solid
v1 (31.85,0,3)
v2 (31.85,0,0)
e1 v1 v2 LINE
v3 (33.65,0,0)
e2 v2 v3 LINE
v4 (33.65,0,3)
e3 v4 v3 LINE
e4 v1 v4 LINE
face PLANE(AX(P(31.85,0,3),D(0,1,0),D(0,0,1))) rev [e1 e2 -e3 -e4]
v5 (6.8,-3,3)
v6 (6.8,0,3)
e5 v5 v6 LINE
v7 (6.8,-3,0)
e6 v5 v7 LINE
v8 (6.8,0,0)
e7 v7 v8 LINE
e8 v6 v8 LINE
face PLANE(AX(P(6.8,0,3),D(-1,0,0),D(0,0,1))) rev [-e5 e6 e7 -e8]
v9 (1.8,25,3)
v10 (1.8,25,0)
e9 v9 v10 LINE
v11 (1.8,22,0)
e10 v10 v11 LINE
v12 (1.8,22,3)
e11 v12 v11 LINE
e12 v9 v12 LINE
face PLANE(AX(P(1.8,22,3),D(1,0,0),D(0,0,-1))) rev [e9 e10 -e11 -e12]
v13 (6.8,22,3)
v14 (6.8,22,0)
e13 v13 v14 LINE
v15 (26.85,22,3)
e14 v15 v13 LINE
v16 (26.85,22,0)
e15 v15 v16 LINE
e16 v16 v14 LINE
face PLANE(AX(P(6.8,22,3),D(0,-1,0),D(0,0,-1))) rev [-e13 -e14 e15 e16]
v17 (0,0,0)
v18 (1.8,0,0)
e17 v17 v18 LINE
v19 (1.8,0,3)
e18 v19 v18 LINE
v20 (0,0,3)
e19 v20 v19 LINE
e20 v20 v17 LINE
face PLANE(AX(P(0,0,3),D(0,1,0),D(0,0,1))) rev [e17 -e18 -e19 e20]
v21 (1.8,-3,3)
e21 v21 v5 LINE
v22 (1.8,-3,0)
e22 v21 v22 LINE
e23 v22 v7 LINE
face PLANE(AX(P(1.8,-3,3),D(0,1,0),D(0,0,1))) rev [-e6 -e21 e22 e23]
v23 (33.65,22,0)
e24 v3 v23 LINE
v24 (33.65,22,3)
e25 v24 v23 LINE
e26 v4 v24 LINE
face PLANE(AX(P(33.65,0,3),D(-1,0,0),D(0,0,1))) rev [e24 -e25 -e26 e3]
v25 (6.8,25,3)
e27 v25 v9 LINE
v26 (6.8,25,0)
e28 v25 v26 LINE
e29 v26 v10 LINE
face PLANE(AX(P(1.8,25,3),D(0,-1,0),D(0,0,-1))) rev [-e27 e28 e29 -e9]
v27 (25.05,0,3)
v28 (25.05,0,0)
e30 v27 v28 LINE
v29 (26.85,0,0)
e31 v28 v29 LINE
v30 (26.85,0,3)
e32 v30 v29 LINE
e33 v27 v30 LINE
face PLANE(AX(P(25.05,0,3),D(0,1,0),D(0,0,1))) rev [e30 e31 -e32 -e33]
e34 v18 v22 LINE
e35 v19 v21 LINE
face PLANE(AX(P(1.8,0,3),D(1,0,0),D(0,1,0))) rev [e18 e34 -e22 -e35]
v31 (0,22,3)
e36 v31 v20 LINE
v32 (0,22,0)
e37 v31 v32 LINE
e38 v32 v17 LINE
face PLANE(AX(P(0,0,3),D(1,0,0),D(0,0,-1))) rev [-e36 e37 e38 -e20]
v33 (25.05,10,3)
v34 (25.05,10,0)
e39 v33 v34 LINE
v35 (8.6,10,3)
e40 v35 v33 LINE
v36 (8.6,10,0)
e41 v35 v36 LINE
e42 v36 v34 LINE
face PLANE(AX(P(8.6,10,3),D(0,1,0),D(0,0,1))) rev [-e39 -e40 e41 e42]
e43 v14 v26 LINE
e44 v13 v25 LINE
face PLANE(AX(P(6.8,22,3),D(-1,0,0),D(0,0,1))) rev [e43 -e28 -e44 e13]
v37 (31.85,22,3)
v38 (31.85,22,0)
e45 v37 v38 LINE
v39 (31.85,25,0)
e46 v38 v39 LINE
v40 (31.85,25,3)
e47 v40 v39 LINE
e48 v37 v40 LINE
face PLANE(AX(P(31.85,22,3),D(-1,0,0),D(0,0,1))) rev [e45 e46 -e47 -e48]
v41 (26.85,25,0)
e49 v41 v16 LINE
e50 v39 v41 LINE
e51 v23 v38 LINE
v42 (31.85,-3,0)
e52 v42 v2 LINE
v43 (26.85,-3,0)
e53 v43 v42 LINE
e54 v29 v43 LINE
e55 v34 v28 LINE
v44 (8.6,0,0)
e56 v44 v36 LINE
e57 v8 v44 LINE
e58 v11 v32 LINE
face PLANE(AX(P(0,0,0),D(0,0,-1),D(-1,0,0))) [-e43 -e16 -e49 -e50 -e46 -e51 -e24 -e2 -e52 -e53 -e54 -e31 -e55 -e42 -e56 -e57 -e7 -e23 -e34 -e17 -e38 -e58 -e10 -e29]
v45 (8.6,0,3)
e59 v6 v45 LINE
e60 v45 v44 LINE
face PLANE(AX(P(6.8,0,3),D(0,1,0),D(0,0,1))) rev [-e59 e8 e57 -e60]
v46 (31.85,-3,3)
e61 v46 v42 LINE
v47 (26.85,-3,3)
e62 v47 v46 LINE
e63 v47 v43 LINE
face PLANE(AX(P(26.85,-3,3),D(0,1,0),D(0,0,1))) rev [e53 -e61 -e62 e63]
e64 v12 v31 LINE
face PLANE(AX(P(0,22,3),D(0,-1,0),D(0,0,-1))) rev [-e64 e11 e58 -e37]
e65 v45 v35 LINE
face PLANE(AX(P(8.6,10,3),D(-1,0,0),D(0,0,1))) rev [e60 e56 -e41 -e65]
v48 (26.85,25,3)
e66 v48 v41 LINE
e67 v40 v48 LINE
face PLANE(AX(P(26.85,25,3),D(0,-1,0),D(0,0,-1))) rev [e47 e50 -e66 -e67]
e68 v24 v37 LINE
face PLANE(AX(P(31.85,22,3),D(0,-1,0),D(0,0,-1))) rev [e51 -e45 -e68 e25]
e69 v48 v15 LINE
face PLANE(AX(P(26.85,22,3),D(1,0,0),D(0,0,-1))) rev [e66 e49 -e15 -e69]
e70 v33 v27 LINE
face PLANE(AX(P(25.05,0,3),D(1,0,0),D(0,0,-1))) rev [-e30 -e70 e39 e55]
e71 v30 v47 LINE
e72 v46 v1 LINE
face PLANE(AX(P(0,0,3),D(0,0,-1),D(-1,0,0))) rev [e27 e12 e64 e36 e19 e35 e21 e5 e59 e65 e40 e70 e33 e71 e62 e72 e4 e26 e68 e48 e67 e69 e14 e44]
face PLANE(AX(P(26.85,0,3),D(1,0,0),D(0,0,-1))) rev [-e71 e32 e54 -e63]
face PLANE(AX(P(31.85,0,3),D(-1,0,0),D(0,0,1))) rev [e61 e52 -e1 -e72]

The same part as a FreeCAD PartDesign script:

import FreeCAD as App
import Part
import Sketcher

doc = App.newDocument("Part")
body = doc.addObject("PartDesign::Body", "Body")

sketch1 = doc.addObject("Sketcher::SketchObject", "Sketch")
body.addObject(sketch1)
sketch1.AttachmentSupport = (doc.XY_Plane, [""])
sketch1.MapMode = "FlatFace"
sketch1.addGeometry(Part.LineSegment(App.Vector(25.1, 0, 0), App.Vector(26.9, 0, 0)), False)
sketch1.addGeometry(Part.LineSegment(App.Vector(26.9, 0, 0), App.Vector(26.9, -3, 0)), False)
sketch1.addGeometry(Part.LineSegment(App.Vector(26.9, -3, 0), App.Vector(31.9, -3, 0)), False)
sketch1.addGeometry(Part.LineSegment(App.Vector(31.9, -3, 0), App.Vector(31.9, 0, 0)), False)
sketch1.addGeometry(Part.LineSegment(App.Vector(31.9, 0, 0), App.Vector(33.6, 0, 0)), False)
sketch1.addGeometry(Part.LineSegment(App.Vector(33.6, 0, 0), App.Vector(33.6, 22, 0)), False)
sketch1.addGeometry(Part.LineSegment(App.Vector(33.6, 22, 0), App.Vector(31.9, 22, 0)), False)
sketch1.addGeometry(Part.LineSegment(App.Vector(31.9, 22, 0), App.Vector(31.9, 25, 0)), False)
sketch1.addGeometry(Part.LineSegment(App.Vector(31.9, 25, 0), App.Vector(26.9, 25, 0)), False)
sketch1.addGeometry(Part.LineSegment(App.Vector(26.9, 25, 0), App.Vector(26.9, 22, 0)), False)
sketch1.addGeometry(Part.LineSegment(App.Vector(26.9, 22, 0), App.Vector(6.8, 22, 0)), False)
sketch1.addGeometry(Part.LineSegment(App.Vector(6.8, 22, 0), App.Vector(6.8, 25, 0)), False)
sketch1.addGeometry(Part.LineSegment(App.Vector(6.8, 25, 0), App.Vector(1.8, 25, 0)), False)
sketch1.addGeometry(Part.LineSegment(App.Vector(1.8, 25, 0), App.Vector(1.8, 22, 0)), False)
sketch1.addGeometry(Part.LineSegment(App.Vector(1.8, 22, 0), App.Vector(0, 22, 0)), False)
sketch1.addGeometry(Part.LineSegment(App.Vector(0, 22, 0), App.Vector(0, 0, 0)), False)
sketch1.addGeometry(Part.LineSegment(App.Vector(0, 0, 0), App.Vector(1.8, 0, 0)), False)
sketch1.addGeometry(Part.LineSegment(App.Vector(1.8, 0, 0), App.Vector(1.8, -3, 0)), False)
sketch1.addGeometry(Part.LineSegment(App.Vector(1.8, -3, 0), App.Vector(6.8, -3, 0)), False)
sketch1.addGeometry(Part.LineSegment(App.Vector(6.8, -3, 0), App.Vector(6.8, 0, 0)), False)
sketch1.addGeometry(Part.LineSegment(App.Vector(6.8, 0, 0), App.Vector(8.6, 0, 0)), False)
sketch1.addGeometry(Part.LineSegment(App.Vector(8.6, 0, 0), App.Vector(8.6, 10, 0)), False)
sketch1.addGeometry(Part.LineSegment(App.Vector(8.6, 10, 0), App.Vector(25.1, 10, 0)), False)
sketch1.addGeometry(Part.LineSegment(App.Vector(25.1, 10, 0), App.Vector(25.1, 0, 0)), False)
sketch1.addConstraint(Sketcher.Constraint("Coincident", 0, 2, 1, 1))
sketch1.addConstraint(Sketcher.Constraint("Coincident", 1, 2, 2, 1))
sketch1.addConstraint(Sketcher.Constraint("Coincident", 2, 2, 3, 1))
sketch1.addConstraint(Sketcher.Constraint("Coincident", 3, 2, 4, 1))
sketch1.addConstraint(Sketcher.Constraint("Coincident", 4, 2, 5, 1))
sketch1.addConstraint(Sketcher.Constraint("Coincident", 5, 2, 6, 1))
sketch1.addConstraint(Sketcher.Constraint("Coincident", 6, 2, 7, 1))
sketch1.addConstraint(Sketcher.Constraint("Coincident", 7, 2, 8, 1))
sketch1.addConstraint(Sketcher.Constraint("Coincident", 8, 2, 9, 1))
sketch1.addConstraint(Sketcher.Constraint("Coincident", 9, 2, 10, 1))
sketch1.addConstraint(Sketcher.Constraint("Coincident", 10, 2, 11, 1))
sketch1.addConstraint(Sketcher.Constraint("Coincident", 11, 2, 12, 1))
sketch1.addConstraint(Sketcher.Constraint("Coincident", 12, 2, 13, 1))
sketch1.addConstraint(Sketcher.Constraint("Coincident", 13, 2, 14, 1))
sketch1.addConstraint(Sketcher.Constraint("Coincident", 14, 2, 15, 1))
sketch1.addConstraint(Sketcher.Constraint("Coincident", 15, 2, 16, 1))
sketch1.addConstraint(Sketcher.Constraint("Coincident", 16, 2, 17, 1))
sketch1.addConstraint(Sketcher.Constraint("Coincident", 17, 2, 18, 1))
sketch1.addConstraint(Sketcher.Constraint("Coincident", 18, 2, 19, 1))
sketch1.addConstraint(Sketcher.Constraint("Coincident", 19, 2, 20, 1))
sketch1.addConstraint(Sketcher.Constraint("Coincident", 20, 2, 21, 1))
sketch1.addConstraint(Sketcher.Constraint("Coincident", 21, 2, 22, 1))
sketch1.addConstraint(Sketcher.Constraint("Coincident", 22, 2, 23, 1))
sketch1.addConstraint(Sketcher.Constraint("Coincident", 23, 2, 0, 1))
sketch1.addConstraint(Sketcher.Constraint("Horizontal", 0))
sketch1.addConstraint(Sketcher.Constraint("Vertical", 1))
sketch1.addConstraint(Sketcher.Constraint("Horizontal", 2))
sketch1.addConstraint(Sketcher.Constraint("Vertical", 3))
sketch1.addConstraint(Sketcher.Constraint("Horizontal", 4))
sketch1.addConstraint(Sketcher.Constraint("Vertical", 5))
sketch1.addConstraint(Sketcher.Constraint("Horizontal", 6))
sketch1.addConstraint(Sketcher.Constraint("Vertical", 7))
sketch1.addConstraint(Sketcher.Constraint("Horizontal", 8))
sketch1.addConstraint(Sketcher.Constraint("Vertical", 9))
sketch1.addConstraint(Sketcher.Constraint("Horizontal", 10))
sketch1.addConstraint(Sketcher.Constraint("Vertical", 11))
sketch1.addConstraint(Sketcher.Constraint("Horizontal", 12))
sketch1.addConstraint(Sketcher.Constraint("Vertical", 13))
sketch1.addConstraint(Sketcher.Constraint("Horizontal", 14))
sketch1.addConstraint(Sketcher.Constraint("Vertical", 15))
sketch1.addConstraint(Sketcher.Constraint("Horizontal", 16))
sketch1.addConstraint(Sketcher.Constraint("Vertical", 17))
sketch1.addConstraint(Sketcher.Constraint("Horizontal", 18))
sketch1.addConstraint(Sketcher.Constraint("Vertical", 19))
sketch1.addConstraint(Sketcher.Constraint("Horizontal", 20))
sketch1.addConstraint(Sketcher.Constraint("Vertical", 21))
sketch1.addConstraint(Sketcher.Constraint("Horizontal", 22))
sketch1.addConstraint(Sketcher.Constraint("Vertical", 23))
sketch1.addConstraint(Sketcher.Constraint("Coincident", 15, 2, -1, 1))
sketch1.addConstraint(Sketcher.Constraint("PointOnObject", 0, 2, -1))
sketch1.addConstraint(Sketcher.Constraint("PointOnObject", 3, 2, -1))
sketch1.addConstraint(Sketcher.Constraint("PointOnObject", 19, 2, -1))
sketch1.addConstraint(Sketcher.Constraint("Horizontal", 6, 2, 9, 2))
sketch1.addConstraint(Sketcher.Constraint("Horizontal", 8, 2, 11, 2))
sketch1.addConstraint(Sketcher.Constraint("Horizontal", 10, 2, 13, 2))
sketch1.addConstraint(Sketcher.Constraint("Horizontal", 2, 2, 17, 2))
sketch1.addConstraint(Sketcher.Constraint("Vertical", 3, 2, 6, 2))
sketch1.addConstraint(Sketcher.Constraint("Vertical", 1, 2, 8, 2))
sketch1.addConstraint(Sketcher.Constraint("Vertical", 13, 2, 16, 2))
sketch1.addConstraint(Sketcher.Constraint("Vertical", 11, 2, 18, 2))
sketch1.addConstraint(Sketcher.Constraint("Equal", 0, 4))
sketch1.addConstraint(Sketcher.Constraint("Equal", 8, 12))
sketch1.addConstraint(Sketcher.Constraint("Equal", 6, 14))
sketch1.addConstraint(Sketcher.Constraint("Equal", 16, 20))
sketch1.addConstraint(Sketcher.Constraint("Equal", 3, 7))
sketch1.addConstraint(Sketcher.Constraint("DistanceX", 2, 1, 2, 2, 5.0))
sketch1.addConstraint(Sketcher.Constraint("DistanceY", 1, 2, 1, 1, 3.0))
sketch1.addConstraint(Sketcher.Constraint("DistanceY", 5, 1, 5, 2, 22.0))
sketch1.addConstraint(Sketcher.Constraint("DistanceY", 21, 1, 21, 2, 10.0))
sketch1.addConstraint(Sketcher.Constraint("DistanceX", 0, 1, 0, 2, 1.8))
sketch1.addConstraint(Sketcher.Constraint("DistanceX", 10, 2, 10, 1, 20.05))
pad1 = doc.addObject("PartDesign::Pad", "Pad")
body.addObject(pad1)
pad1.Profile = sketch1
pad1.Length = 3

doc.recompute()
